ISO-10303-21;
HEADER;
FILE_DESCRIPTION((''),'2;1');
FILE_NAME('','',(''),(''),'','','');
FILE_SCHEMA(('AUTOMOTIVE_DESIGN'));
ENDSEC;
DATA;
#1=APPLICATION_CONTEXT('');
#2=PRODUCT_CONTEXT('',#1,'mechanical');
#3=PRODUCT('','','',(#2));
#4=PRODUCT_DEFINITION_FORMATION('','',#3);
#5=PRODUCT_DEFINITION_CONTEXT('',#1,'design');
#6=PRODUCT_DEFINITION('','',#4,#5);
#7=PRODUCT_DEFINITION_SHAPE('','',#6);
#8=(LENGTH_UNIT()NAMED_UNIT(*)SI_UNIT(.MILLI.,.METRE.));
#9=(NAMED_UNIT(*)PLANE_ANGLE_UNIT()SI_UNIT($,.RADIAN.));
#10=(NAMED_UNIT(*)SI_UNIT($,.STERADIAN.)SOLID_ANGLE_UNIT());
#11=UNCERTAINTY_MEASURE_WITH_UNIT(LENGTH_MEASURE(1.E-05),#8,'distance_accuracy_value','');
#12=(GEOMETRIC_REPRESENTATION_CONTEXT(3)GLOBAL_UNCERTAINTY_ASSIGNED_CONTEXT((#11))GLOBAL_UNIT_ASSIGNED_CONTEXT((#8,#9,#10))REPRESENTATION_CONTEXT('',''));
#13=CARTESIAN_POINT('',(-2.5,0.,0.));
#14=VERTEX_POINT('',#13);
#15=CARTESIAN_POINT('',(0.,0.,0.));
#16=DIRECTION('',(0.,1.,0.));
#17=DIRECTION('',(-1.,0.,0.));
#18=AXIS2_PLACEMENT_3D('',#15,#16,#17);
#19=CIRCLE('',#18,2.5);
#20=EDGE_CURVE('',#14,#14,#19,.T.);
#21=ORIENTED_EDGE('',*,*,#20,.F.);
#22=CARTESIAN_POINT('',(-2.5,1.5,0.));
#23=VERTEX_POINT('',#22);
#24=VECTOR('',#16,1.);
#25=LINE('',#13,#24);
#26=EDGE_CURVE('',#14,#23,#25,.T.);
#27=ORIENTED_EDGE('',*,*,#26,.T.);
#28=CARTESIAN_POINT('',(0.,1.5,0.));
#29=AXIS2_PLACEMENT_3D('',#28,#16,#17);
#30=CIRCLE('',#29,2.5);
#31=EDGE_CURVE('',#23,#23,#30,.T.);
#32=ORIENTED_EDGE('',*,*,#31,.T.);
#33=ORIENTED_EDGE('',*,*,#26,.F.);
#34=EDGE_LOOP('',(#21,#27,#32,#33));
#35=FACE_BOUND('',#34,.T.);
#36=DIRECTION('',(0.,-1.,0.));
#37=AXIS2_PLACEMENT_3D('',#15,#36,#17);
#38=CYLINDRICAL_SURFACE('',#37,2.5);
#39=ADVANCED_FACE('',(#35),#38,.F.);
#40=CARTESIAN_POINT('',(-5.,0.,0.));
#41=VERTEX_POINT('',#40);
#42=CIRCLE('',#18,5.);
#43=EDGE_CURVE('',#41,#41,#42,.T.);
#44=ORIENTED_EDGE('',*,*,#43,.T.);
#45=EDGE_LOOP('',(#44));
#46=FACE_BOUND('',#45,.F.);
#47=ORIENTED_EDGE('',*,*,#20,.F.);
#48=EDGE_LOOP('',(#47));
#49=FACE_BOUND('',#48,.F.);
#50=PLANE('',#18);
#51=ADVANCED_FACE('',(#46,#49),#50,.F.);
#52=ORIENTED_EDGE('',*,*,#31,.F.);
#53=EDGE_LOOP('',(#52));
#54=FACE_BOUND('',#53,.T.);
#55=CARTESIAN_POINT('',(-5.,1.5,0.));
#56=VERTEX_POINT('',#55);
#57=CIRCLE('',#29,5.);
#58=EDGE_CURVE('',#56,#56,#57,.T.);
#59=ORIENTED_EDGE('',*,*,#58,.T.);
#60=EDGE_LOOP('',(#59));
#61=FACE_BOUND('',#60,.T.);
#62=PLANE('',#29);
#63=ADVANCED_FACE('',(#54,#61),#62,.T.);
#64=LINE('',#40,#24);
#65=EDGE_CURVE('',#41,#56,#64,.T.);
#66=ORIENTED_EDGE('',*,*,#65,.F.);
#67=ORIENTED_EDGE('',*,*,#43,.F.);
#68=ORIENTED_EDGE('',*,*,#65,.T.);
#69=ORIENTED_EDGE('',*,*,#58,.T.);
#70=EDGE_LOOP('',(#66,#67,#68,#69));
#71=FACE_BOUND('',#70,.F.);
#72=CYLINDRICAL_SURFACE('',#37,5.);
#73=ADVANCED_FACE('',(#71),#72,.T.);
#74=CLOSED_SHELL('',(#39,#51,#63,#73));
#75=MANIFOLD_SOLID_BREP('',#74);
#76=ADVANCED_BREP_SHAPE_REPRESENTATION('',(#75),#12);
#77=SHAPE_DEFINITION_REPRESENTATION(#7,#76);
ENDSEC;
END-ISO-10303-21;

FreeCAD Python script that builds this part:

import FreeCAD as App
import Part
import Sketcher
from FreeCAD import Vector
Q = App.Units.Quantity

doc = App.newDocument("Part")
body = doc.addObject("PartDesign::Body", "Body")

# Sketch on XZ plane
sketch1 = body.newObject("Sketcher::SketchObject", "Sketch")
sketch1.AttachmentSupport = (doc.getObject("XZ_Plane"), [""])
sketch1.MapMode = "FlatFace"
sketch1.addGeometry([
    Part.Circle(Vector(0, 0, 0), Vector(0, 0, 1), 5),
    Part.Circle(Vector(0, 0, 0), Vector(0, 0, 1), 2.5),
], False)
sketch1.addConstraint([
    Sketcher.Constraint("Coincident", 0, 3, -1, 1),
    Sketcher.Constraint("Coincident", 1, 3, -1, 1),
    Sketcher.Constraint("Diameter", 0, Q("10 mm")),
    Sketcher.Constraint("Diameter", 1, Q("5 mm")),
])
pad1 = body.newObject("PartDesign::Pad", "Pad")
pad1.Profile = sketch1
pad1.Length = 1.5
pad1.Reversed = True

doc.recompute()
